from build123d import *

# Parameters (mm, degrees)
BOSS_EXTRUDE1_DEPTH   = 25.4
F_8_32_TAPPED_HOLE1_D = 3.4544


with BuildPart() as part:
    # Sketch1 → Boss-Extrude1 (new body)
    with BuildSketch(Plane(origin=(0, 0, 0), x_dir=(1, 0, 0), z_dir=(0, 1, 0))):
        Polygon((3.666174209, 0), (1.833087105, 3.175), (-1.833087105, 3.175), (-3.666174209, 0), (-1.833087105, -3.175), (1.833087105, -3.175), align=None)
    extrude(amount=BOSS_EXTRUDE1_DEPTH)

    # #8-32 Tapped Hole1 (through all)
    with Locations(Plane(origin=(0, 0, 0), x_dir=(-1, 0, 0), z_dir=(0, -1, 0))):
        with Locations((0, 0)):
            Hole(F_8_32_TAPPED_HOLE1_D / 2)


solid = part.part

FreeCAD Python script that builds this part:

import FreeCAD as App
import Part
import Sketcher
Q = App.Units.Quantity


def add_polygon(sketch, points):
    """Adds a closed chain of lines whose ends are joined by coincident constraints."""
    first, n = sketch.GeometryCount, len(points)
    for a, b in zip(points, points[1:] + points[:1]):
        sketch.addGeometry(Part.LineSegment(App.Vector(*a, 0), App.Vector(*b, 0)), False)
    for i in range(n):
        sketch.addConstraint(Sketcher.Constraint("Coincident", first + i, 2, first + (i + 1) % n, 1))

doc = App.newDocument("Part")
body = doc.addObject("PartDesign::Body", "Body")

# Sketch on XZ plane
sketch1 = body.newObject("Sketcher::SketchObject", "Sketch")
sketch1.AttachmentSupport = (doc.getObject("XZ_Plane"), [""])
sketch1.MapMode = "FlatFace"
add_polygon(sketch1, [(3.666174, 0), (1.833087, -3.175), (-1.833087, -3.175), (-3.666174, 0), (-1.833087, 3.175), (1.833087, 3.175)])  # lines 0-5
sketch1.addConstraint([
    Sketcher.Constraint("Horizontal", 1),
    Sketcher.Constraint("Horizontal", 4),
    Sketcher.Constraint("Symmetric", 0, 2, 3, 2, -1, 1),
    Sketcher.Constraint("Symmetric", 2, 2, 5, 2, -1, 1),
    Sketcher.Constraint("PointOnObject", 2, 2, -1),
    Sketcher.Constraint("Parallel", 2, 5),
    Sketcher.Constraint("Vertical", 1, 2, 3, 2),
    Sketcher.Constraint("Angle", 0, Q("-120 deg")),
    Sketcher.Constraint("DistanceY", 1, 2, 3, 2, Q("0.25 in")),
    Sketcher.Constraint("DistanceX", 1, 2, 1, 1, 3.666174),
])
pad1 = body.newObject("PartDesign::Pad", "Pad")
pad1.Profile = sketch1
pad1.Length = Q("1 in")
pad1.Reversed = True

# Sketch on XZ plane
sketch2 = body.newObject("Sketcher::SketchObject", "Sketch001")
sketch2.AttachmentSupport = (doc.getObject("XZ_Plane"), [""])
sketch2.MapMode = "FlatFace"
sketch2.addGeometry(Part.Circle(App.Vector(0, 0, 0), App.Vector(0, 0, 1), 1.7272), False)
sketch2.addConstraint([
    Sketcher.Constraint("Coincident", 0, 3, -1, 1),
    Sketcher.Constraint("Diameter", 0, Q("0.136 in")),
])
doc.recompute()
hole = body.newObject("PartDesign::Hole", "Hole")
hole.Profile = sketch2
hole.ThreadType = "None"
hole.Diameter = Q("0.136 in")
hole.DepthType = "ThroughAll"

doc.recompute()
